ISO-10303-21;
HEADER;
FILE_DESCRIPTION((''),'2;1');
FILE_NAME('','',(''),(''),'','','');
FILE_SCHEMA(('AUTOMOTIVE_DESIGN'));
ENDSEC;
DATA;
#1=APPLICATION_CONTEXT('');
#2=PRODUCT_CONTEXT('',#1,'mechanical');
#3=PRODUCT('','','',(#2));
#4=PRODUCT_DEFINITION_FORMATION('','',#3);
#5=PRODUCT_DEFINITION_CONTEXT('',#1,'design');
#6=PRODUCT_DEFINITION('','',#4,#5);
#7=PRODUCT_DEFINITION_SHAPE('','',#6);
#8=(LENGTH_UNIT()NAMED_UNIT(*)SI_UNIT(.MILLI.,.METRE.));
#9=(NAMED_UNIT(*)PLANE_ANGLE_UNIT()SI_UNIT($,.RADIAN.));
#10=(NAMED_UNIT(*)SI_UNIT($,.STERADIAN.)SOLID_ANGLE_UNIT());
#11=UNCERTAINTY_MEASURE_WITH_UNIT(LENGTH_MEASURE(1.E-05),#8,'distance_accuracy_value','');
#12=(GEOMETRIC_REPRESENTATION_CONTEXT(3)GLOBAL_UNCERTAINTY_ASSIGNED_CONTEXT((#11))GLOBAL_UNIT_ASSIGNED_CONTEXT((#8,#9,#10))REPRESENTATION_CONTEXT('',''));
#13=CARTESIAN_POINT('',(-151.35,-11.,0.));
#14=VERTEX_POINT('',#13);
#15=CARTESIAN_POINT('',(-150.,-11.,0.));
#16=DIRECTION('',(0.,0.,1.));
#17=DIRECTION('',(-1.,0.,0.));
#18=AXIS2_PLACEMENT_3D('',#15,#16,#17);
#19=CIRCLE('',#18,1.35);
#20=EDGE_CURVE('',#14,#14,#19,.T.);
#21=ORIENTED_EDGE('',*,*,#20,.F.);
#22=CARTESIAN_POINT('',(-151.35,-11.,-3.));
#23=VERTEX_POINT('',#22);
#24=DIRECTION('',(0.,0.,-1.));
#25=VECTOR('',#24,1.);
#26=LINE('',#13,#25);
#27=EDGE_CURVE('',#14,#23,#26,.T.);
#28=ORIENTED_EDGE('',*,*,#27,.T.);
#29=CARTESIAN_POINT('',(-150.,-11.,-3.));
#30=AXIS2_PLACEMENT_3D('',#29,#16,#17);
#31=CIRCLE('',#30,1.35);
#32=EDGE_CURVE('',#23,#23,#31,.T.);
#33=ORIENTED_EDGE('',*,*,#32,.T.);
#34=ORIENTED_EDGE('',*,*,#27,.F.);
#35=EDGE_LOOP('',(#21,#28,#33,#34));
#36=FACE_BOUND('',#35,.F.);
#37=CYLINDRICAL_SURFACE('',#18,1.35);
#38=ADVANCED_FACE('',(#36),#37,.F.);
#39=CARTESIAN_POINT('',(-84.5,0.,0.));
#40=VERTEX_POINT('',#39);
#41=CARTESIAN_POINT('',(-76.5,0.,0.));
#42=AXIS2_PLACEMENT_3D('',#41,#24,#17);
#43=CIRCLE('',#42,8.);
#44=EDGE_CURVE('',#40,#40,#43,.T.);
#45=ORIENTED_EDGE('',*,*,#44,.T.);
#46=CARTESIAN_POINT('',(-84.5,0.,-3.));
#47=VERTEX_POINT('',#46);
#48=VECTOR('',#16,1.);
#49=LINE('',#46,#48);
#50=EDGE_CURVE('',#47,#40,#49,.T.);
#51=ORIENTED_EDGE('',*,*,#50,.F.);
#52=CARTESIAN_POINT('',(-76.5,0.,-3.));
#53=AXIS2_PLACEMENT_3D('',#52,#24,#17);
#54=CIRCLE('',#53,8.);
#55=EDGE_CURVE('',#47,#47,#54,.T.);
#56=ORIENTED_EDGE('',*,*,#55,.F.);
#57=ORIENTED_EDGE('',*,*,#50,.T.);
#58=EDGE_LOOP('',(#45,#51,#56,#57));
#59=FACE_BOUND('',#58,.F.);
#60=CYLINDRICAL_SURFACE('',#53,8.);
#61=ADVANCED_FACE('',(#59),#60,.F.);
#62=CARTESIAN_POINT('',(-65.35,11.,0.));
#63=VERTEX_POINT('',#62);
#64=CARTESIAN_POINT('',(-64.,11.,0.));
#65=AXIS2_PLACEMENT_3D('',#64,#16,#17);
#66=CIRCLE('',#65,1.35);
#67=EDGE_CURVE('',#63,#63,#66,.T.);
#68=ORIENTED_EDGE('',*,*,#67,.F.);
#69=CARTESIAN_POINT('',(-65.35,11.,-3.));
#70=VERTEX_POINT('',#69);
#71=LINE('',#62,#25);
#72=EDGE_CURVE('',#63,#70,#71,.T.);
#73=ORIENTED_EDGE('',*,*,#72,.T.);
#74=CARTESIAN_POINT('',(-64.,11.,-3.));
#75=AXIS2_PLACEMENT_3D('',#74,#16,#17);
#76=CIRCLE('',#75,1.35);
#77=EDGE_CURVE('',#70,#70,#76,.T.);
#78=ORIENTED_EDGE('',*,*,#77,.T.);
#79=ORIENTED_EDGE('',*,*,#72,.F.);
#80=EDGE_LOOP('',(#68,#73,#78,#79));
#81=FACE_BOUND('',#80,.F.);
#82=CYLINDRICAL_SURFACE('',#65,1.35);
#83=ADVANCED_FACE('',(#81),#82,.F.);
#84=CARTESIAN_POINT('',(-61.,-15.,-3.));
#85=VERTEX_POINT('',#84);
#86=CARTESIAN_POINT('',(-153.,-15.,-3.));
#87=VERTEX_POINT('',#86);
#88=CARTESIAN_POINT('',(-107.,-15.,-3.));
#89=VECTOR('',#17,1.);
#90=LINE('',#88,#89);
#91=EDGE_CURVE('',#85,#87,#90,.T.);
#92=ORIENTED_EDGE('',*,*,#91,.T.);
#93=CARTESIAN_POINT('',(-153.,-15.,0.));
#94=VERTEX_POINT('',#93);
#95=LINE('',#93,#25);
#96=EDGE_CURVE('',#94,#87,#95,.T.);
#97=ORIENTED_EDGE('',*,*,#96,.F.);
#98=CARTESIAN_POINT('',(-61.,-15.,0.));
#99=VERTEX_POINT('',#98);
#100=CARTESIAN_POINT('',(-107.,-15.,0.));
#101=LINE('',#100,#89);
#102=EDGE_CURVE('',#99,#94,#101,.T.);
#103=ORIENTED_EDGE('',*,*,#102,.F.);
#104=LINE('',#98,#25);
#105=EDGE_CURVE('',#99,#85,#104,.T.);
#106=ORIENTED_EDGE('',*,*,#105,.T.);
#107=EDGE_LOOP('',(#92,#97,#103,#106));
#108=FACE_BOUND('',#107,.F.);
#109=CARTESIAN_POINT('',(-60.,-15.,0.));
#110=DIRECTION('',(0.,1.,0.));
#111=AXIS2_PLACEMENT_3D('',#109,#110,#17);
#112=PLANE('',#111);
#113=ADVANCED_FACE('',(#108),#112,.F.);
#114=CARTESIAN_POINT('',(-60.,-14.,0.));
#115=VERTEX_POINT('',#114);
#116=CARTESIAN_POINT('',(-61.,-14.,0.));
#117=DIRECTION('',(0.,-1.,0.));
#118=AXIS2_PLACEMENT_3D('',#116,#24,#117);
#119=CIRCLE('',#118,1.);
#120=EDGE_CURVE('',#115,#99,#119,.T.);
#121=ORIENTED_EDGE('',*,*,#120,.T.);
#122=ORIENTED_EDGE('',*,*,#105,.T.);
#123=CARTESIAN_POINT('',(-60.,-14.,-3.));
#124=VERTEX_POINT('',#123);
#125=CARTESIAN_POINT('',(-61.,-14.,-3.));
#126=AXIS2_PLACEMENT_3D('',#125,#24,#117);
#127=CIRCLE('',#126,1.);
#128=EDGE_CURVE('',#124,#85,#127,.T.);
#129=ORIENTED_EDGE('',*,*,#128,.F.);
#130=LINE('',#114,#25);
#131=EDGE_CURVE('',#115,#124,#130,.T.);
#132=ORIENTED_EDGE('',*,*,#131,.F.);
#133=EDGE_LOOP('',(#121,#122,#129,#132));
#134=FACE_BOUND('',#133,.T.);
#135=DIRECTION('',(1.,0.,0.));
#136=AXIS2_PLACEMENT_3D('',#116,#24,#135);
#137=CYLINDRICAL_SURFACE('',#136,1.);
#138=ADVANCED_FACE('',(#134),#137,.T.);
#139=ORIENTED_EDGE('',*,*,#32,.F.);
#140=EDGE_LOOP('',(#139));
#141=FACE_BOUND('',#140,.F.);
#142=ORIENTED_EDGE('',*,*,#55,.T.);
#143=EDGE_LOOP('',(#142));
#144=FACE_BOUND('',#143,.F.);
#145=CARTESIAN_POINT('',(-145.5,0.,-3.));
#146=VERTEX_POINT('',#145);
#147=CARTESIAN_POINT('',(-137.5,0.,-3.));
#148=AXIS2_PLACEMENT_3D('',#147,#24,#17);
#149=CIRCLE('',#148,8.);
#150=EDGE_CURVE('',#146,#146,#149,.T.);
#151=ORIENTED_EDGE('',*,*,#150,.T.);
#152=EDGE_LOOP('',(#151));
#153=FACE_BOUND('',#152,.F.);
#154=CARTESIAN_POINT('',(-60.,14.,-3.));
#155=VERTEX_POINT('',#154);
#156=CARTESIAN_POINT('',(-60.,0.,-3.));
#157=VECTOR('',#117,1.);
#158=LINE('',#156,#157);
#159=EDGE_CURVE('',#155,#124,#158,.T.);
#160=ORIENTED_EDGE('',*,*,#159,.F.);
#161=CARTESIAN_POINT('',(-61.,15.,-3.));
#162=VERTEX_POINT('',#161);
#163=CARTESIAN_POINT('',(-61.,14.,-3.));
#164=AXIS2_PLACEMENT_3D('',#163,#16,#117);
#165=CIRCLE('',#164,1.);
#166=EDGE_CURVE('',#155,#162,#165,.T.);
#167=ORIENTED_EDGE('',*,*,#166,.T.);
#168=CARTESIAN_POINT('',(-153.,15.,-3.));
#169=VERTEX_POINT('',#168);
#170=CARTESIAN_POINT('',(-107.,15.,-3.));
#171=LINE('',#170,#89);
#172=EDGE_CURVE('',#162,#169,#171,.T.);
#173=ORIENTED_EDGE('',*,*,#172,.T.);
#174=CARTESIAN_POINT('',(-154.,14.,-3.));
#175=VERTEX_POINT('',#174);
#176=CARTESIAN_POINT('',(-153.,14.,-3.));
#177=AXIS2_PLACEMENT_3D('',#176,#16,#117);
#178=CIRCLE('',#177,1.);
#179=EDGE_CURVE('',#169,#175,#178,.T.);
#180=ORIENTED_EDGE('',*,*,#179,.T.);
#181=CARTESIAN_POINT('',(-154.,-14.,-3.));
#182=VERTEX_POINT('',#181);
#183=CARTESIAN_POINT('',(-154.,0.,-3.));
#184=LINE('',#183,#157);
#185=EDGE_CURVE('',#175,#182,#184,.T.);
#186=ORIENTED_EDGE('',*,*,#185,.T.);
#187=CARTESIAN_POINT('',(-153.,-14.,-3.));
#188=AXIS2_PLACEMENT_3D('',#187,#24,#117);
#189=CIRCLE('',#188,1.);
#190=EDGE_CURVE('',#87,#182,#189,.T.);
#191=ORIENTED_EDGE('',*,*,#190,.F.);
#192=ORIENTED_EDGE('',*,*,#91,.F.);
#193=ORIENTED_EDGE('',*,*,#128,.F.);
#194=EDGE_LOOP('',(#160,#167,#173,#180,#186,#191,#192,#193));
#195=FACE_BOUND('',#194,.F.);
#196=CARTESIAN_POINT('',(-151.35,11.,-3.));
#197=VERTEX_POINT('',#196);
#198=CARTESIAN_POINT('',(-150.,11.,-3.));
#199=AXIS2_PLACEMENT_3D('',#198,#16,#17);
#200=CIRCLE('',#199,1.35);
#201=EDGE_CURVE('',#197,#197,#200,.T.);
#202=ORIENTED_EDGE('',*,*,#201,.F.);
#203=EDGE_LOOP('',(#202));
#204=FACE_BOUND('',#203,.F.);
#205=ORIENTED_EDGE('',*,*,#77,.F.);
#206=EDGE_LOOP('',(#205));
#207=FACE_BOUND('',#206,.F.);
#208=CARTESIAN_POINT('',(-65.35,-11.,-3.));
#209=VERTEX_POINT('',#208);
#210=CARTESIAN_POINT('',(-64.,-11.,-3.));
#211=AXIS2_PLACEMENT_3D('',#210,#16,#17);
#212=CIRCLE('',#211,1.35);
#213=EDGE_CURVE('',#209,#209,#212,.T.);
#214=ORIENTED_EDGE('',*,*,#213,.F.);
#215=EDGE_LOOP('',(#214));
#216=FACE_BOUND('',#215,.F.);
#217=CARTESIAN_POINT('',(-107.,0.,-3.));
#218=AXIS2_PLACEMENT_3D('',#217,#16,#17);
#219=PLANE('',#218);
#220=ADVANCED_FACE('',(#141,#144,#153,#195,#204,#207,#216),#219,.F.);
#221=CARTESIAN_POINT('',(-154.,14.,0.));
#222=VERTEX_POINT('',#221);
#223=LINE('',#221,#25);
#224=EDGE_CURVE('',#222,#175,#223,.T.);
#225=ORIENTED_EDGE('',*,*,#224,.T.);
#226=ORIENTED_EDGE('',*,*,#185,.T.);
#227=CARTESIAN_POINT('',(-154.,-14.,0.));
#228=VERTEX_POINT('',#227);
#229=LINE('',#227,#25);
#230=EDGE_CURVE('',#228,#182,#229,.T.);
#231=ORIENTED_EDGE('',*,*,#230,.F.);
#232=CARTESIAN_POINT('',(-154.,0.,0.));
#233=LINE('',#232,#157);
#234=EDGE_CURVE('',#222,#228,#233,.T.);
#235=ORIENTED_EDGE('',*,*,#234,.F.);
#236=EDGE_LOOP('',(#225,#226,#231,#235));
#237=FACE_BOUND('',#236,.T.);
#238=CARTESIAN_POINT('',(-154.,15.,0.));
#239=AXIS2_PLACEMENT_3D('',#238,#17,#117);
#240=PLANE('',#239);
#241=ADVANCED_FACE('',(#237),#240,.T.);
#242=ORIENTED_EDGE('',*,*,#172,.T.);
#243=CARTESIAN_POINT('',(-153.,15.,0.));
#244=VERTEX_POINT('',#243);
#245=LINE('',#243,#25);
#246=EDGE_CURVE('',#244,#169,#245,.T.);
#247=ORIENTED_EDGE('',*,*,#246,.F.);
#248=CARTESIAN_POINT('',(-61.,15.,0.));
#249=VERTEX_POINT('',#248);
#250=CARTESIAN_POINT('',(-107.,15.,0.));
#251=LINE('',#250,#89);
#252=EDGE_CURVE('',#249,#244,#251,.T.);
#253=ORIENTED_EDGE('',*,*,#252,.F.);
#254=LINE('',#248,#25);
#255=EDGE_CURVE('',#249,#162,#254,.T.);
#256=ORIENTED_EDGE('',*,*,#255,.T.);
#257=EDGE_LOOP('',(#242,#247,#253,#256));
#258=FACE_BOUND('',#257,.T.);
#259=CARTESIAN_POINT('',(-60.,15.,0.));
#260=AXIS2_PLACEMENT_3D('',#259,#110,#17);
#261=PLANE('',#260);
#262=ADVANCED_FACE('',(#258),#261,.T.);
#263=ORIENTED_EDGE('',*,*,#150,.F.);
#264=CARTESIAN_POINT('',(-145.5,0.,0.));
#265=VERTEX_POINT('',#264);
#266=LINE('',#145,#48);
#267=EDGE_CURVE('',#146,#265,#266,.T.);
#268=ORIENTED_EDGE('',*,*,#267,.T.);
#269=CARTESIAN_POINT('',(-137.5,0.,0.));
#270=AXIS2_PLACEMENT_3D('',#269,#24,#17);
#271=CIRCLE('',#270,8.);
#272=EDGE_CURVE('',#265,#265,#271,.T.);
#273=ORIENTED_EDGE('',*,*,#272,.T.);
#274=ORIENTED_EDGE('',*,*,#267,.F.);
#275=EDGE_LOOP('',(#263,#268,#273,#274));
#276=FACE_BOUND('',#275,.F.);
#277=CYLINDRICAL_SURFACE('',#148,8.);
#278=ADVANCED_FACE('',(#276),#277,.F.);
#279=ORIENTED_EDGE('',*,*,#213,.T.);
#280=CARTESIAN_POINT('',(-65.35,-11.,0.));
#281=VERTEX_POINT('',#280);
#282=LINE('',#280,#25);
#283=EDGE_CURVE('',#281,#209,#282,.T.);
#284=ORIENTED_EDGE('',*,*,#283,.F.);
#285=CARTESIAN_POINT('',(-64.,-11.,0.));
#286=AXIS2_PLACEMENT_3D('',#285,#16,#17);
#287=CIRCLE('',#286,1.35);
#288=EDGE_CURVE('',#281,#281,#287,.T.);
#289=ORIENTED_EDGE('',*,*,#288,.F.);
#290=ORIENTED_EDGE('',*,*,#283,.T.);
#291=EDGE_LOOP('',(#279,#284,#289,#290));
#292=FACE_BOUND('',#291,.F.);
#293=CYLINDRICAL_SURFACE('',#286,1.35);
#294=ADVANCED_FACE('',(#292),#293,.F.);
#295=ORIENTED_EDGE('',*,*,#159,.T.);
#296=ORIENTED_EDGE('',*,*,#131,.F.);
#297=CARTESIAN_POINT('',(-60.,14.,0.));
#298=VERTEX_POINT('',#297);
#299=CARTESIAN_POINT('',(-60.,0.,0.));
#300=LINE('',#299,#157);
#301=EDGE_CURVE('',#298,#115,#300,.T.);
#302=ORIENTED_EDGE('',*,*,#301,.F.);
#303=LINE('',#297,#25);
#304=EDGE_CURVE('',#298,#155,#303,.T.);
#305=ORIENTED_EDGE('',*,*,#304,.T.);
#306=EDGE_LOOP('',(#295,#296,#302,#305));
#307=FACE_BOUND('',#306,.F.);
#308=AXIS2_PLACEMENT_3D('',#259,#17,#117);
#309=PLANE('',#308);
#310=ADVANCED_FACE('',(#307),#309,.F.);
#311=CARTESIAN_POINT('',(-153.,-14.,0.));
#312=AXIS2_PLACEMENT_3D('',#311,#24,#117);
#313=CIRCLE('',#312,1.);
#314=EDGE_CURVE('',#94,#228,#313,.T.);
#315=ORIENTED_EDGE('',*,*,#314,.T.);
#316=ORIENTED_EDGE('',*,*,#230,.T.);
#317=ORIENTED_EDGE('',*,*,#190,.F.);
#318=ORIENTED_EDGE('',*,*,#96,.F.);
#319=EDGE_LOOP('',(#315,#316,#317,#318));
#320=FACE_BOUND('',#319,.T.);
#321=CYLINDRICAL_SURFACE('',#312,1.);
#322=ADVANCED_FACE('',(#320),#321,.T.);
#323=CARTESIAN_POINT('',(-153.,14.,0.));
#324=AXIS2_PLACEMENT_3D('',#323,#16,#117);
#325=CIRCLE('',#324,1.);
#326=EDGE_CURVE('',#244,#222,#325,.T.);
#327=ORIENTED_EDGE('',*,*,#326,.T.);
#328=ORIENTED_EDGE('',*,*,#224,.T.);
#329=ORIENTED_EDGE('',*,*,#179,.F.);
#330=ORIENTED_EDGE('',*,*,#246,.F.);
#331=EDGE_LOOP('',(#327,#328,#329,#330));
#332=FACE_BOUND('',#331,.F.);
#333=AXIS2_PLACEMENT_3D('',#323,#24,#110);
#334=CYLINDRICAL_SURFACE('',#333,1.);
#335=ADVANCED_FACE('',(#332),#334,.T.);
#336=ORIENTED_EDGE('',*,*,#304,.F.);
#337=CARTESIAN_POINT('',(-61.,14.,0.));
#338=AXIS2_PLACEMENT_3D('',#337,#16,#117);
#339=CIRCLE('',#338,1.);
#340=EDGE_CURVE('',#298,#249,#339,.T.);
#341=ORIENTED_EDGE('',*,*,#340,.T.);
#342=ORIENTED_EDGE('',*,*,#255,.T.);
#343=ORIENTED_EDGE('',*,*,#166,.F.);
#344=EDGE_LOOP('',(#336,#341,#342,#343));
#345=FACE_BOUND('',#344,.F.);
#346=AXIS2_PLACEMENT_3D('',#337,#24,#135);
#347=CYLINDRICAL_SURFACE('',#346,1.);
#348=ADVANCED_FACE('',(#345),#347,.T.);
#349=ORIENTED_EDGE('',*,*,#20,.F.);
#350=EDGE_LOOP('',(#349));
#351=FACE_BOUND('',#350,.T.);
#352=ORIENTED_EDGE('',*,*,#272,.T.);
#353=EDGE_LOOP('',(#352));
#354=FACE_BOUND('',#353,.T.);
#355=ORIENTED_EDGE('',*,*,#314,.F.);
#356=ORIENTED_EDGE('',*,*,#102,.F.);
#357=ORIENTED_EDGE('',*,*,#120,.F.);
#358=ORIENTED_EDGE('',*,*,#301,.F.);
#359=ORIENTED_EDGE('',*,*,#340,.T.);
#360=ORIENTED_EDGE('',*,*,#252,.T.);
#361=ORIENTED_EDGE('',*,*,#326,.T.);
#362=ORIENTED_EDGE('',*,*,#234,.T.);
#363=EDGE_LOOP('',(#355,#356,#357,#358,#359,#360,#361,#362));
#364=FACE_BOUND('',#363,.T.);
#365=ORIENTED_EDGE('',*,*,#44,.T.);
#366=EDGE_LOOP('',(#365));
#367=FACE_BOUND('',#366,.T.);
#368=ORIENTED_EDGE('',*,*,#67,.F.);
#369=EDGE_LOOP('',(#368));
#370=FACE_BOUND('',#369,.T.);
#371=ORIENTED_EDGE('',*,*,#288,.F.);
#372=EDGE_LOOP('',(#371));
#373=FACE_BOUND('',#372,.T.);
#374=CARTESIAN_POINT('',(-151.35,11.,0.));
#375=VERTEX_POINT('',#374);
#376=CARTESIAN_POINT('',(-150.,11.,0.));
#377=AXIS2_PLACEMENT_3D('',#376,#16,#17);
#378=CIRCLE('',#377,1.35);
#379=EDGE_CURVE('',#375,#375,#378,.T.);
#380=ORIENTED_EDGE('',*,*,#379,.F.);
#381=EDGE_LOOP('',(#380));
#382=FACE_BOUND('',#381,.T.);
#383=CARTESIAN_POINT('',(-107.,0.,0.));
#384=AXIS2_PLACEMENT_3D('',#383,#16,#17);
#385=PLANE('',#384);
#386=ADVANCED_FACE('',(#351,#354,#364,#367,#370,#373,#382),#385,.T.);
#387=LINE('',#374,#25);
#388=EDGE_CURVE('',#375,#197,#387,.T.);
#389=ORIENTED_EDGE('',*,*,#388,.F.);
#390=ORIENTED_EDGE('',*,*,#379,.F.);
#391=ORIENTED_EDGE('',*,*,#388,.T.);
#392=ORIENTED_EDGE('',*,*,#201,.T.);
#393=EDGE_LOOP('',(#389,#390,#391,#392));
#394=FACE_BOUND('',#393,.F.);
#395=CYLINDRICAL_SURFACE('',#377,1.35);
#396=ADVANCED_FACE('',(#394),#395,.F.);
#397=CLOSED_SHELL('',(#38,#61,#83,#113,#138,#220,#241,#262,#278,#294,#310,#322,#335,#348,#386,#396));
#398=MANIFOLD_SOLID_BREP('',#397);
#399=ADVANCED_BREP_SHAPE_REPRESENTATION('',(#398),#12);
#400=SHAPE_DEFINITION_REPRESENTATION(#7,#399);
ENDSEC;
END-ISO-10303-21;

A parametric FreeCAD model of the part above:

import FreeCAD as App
import Part
import Sketcher
from FreeCAD import Vector


def edges_at(feature, points):
    """Names of the edges that pass closest to the given points."""
    edges = feature.Shape.Edges
    near = lambda p: min(range(len(edges)), key=lambda i: edges[i].distToShape(Part.Vertex(*p))[0])
    return sorted({f"Edge{near(p) + 1}" for p in points})


def add_polygon(sketch, points):
    """Adds a closed chain of lines whose ends are joined by coincident constraints."""
    first, n = sketch.GeometryCount, len(points)
    for a, b in zip(points, points[1:] + points[:1]):
        sketch.addGeometry(Part.LineSegment(App.Vector(*a, 0), App.Vector(*b, 0)), False)
    for i in range(n):
        sketch.addConstraint(Sketcher.Constraint("Coincident", first + i, 2, first + (i + 1) % n, 1))

doc = App.newDocument("Part")
body = doc.addObject("PartDesign::Body", "Body")

# Sketch on XY plane
sketch1 = body.newObject("Sketcher::SketchObject", "Sketch")
sketch1.AttachmentSupport = (doc.getObject("XY_Plane"), [""])
sketch1.MapMode = "FlatFace"
sketch1.AttachmentOffset = App.Placement(Vector(0, 0, -13), App.Rotation())
add_polygon(sketch1, [(60, -15), (60, 15), (154, 15), (154, -15)])  # lines 0-3
sketch1.addConstraint(Sketcher.Constraint("Vertical", 0))
sketch1.addConstraint(Sketcher.Constraint("Horizontal", 1))
sketch1.addConstraint(Sketcher.Constraint("Vertical", 2))
sketch1.addConstraint(Sketcher.Constraint("Horizontal", 3))
sketch1.addConstraint(Sketcher.Constraint("DistanceX", 1, 1, 1, 2, 94.0))
sketch1.addConstraint(Sketcher.Constraint("DistanceY", 0, 1, 0, 2, 30.0))
sketch1.addConstraint(Sketcher.Constraint("DistanceX", -1, 1, 0, 2, 60.0))
sketch1.addConstraint(Sketcher.Constraint("DistanceY", -1, 1, 0, 2, 15.0))
pad1 = body.newObject("PartDesign::Pad", "Pad")
pad1.Profile = sketch1
pad1.Length = 3

# Sketch on XY plane
sketch2 = body.newObject("Sketcher::SketchObject", "Sketch001")
sketch2.AttachmentSupport = (doc.getObject("XY_Plane"), [""])
sketch2.MapMode = "FlatFace"
sketch2.AttachmentOffset = App.Placement(Vector(0, 0, -10), App.Rotation())
sketch2.addGeometry(Part.Circle(Vector(76.5, 0, 0), Vector(0, 0, 1), 8), False)
sketch2.addGeometry(Part.Circle(Vector(137.5, 0, 0), Vector(0, 0, 1), 8), False)
sketch2.addConstraint(Sketcher.Constraint("Equal", 0, 1))
sketch2.addConstraint(Sketcher.Constraint("PointOnObject", 0, 3, -1))
sketch2.addConstraint(Sketcher.Constraint("PointOnObject", 1, 3, -1))
sketch2.addConstraint(Sketcher.Constraint("Diameter", 0, 16.0))
sketch2.addConstraint(Sketcher.Constraint("DistanceX", 0, 3, 1, 3, 61.0))
sketch2.addConstraint(Sketcher.Constraint("DistanceX", -1, 1, 0, 3, 76.5))
pocket1 = body.newObject("PartDesign::Pocket", "Pocket")
pocket1.Profile = sketch2
pocket1.Length = 25

# Sketch on XY plane
sketch3 = body.newObject("Sketcher::SketchObject", "Sketch002")
sketch3.AttachmentSupport = (doc.getObject("XY_Plane"), [""])
sketch3.MapMode = "FlatFace"
sketch3.AttachmentOffset = App.Placement(Vector(0, 0, -13), App.Rotation())
sketch3.addGeometry(Part.Circle(Vector(64, 11, 0), Vector(0, 0, 1), 1.35), False)
sketch3.addGeometry(Part.Circle(Vector(64, -11, 0), Vector(0, 0, 1), 1.35), False)
sketch3.addGeometry(Part.Circle(Vector(150, -11, 0), Vector(0, 0, 1), 1.35), False)
sketch3.addGeometry(Part.Circle(Vector(150, 11, 0), Vector(0, 0, 1), 1.35), False)
sketch3.addConstraint(Sketcher.Constraint("Equal", 0, 1))
sketch3.addConstraint(Sketcher.Constraint("Equal", 1, 2))
sketch3.addConstraint(Sketcher.Constraint("Equal", 2, 3))
sketch3.addConstraint(Sketcher.Constraint("Symmetric", 0, 3, 1, 3, -1))
sketch3.addConstraint(Sketcher.Constraint("Symmetric", 2, 3, 3, 3, -1))
sketch3.addConstraint(Sketcher.Constraint("Horizontal", 1, 3, 2, 3))
sketch3.addConstraint(Sketcher.Constraint("Diameter", 0, 2.7))
sketch3.addConstraint(Sketcher.Constraint("DistanceX", -1, 1, 0, 3, 64.0))
sketch3.addConstraint(Sketcher.Constraint("DistanceY", -1, 1, 0, 3, 11.0))
sketch3.addConstraint(Sketcher.Constraint("DistanceX", -1, 1, 2, 3, 150.0))
pocket2 = body.newObject("PartDesign::Pocket", "Pocket001")
pocket2.Profile = sketch3
pocket2.Length = 25
pocket2.Reversed = True
doc.recompute()

fillet = body.newObject("PartDesign::Fillet", "Fillet")
fillet.Base = (pocket2, edges_at(pocket2, [
    (154, -15, -11.5),
    (154, 15, -11.5),
    (60, 15, -11.5),
    (60, -15, -11.5),
]))
fillet.Radius = 1
body2 = doc.addObject("PartDesign::Body", "Body001")
doc.recompute()

body.Placement = App.Placement(Vector(0, 0, -13), App.Rotation(Vector(0, 1, 0), 180))
boolean = body2.newObject("PartDesign::Boolean", "Boolean")
boolean.Type = "Fuse"
boolean.addObjects([body])

doc.recompute()
